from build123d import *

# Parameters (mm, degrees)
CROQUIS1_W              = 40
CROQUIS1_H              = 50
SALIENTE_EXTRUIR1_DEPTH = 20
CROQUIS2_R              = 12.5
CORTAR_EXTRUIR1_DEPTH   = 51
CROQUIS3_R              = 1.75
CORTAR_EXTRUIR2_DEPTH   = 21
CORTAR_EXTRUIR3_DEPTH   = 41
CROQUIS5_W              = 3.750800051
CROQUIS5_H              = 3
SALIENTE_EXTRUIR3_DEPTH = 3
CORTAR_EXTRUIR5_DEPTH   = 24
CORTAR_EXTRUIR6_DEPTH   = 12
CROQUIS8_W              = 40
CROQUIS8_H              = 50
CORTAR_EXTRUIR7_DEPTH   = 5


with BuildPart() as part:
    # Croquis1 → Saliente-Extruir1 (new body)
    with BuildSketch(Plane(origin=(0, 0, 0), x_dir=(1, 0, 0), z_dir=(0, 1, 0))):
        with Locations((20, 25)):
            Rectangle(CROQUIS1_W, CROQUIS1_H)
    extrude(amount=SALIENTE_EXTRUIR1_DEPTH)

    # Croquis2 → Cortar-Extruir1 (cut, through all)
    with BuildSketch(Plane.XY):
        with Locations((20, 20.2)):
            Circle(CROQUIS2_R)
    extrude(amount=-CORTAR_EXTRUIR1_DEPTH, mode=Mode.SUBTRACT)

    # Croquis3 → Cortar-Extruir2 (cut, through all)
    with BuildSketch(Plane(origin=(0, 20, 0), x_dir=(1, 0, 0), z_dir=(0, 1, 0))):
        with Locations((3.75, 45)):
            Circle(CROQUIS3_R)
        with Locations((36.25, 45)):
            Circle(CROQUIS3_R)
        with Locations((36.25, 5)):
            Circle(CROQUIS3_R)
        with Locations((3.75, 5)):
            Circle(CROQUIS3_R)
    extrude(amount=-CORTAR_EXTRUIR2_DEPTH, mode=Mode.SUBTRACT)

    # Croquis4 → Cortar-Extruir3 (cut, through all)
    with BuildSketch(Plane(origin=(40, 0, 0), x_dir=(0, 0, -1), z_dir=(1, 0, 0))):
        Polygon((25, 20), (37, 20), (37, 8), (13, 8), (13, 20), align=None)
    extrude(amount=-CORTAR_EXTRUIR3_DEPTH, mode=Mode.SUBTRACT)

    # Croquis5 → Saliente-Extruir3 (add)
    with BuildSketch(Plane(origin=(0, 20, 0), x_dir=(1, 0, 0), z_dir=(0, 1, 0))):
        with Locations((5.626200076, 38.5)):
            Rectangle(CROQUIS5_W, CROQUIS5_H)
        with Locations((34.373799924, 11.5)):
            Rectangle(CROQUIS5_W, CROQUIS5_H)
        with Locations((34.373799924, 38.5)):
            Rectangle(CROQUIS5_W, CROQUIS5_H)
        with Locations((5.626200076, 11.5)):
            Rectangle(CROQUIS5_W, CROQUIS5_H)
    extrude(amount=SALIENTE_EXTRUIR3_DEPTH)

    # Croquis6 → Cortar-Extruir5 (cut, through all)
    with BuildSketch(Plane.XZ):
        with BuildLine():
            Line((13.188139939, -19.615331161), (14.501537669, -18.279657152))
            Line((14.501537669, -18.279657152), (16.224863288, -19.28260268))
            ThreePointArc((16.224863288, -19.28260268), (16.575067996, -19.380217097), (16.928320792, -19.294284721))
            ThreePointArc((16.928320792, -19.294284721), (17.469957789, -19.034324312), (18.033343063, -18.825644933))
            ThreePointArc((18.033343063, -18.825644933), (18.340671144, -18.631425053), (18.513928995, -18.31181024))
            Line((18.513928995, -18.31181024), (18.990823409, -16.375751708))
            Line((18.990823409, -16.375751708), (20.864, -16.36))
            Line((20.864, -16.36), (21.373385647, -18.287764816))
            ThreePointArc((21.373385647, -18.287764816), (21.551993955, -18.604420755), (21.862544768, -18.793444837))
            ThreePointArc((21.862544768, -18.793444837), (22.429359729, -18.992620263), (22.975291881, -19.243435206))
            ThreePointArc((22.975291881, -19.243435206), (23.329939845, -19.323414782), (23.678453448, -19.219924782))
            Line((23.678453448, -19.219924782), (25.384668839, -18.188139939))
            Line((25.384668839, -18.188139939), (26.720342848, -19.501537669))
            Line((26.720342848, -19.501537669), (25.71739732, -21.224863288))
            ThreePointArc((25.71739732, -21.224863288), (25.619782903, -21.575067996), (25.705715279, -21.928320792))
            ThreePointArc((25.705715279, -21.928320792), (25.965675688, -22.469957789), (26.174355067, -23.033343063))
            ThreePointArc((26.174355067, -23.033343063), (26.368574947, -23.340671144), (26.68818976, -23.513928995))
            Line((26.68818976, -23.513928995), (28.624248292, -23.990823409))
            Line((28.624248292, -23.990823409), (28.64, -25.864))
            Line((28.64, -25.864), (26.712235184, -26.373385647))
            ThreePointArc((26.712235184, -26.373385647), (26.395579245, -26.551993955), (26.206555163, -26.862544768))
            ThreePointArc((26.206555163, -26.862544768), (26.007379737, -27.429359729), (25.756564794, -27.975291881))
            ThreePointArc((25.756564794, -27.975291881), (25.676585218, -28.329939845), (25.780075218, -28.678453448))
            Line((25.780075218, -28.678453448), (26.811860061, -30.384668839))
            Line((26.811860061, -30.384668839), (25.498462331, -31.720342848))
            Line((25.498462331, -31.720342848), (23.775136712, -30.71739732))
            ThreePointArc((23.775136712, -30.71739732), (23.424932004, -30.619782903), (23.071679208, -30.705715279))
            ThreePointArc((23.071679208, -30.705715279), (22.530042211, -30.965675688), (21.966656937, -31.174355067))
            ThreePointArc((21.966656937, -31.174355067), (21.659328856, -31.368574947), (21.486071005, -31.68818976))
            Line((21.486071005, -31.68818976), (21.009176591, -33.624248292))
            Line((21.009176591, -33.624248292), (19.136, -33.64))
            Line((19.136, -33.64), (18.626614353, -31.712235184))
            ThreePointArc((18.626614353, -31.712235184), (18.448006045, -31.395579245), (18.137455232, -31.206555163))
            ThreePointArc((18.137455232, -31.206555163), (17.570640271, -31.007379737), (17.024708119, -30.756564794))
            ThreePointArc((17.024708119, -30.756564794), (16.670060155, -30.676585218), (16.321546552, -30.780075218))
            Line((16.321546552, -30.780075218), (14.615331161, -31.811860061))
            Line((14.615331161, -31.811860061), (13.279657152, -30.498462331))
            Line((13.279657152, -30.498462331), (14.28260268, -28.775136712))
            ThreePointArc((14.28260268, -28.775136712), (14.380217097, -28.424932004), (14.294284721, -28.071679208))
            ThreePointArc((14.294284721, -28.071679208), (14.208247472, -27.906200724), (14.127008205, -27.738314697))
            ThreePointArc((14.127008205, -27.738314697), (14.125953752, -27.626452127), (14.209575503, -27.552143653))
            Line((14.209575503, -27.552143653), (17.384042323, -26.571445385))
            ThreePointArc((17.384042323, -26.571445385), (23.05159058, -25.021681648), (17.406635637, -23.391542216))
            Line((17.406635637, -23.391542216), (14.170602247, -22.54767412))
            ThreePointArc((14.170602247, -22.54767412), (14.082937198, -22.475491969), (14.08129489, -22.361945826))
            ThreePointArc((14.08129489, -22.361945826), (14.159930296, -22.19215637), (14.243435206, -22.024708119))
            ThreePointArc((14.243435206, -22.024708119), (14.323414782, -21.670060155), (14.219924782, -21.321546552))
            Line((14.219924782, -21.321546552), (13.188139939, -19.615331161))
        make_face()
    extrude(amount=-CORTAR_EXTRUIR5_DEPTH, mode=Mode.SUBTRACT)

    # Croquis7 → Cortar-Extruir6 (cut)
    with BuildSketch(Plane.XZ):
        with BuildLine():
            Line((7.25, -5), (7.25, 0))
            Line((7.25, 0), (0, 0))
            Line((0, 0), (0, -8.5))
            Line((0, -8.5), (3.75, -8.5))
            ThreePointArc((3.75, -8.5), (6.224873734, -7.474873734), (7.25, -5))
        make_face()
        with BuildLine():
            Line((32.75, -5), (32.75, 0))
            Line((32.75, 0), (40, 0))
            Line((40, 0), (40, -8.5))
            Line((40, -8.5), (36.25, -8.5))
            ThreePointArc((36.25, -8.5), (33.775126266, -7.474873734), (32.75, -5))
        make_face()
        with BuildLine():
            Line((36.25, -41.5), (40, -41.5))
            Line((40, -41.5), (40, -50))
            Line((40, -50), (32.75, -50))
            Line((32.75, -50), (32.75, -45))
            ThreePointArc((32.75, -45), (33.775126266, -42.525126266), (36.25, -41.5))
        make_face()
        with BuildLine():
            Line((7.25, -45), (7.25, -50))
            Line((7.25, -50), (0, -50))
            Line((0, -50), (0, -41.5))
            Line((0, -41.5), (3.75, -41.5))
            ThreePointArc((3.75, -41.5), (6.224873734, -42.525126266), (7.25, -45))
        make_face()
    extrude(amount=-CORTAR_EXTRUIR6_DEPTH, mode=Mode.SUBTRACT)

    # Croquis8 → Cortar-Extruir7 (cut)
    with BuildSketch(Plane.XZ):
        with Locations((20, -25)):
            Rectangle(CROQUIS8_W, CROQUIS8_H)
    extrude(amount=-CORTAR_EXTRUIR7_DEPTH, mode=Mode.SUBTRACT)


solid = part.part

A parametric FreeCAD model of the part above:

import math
import FreeCAD as App
import Part
import Sketcher
Q = App.Units.Quantity

doc = App.newDocument("Part")
body = doc.addObject("PartDesign::Body", "Body")

sketch1 = body.newObject("Sketcher::SketchObject", "Sketch")
sketch1.AttachmentSupport = (doc.getObject("XZ_Plane"), [""])
sketch1.MapMode = "FlatFace"
sketch1.addGeometry([
    Part.LineSegment(App.Vector(0, -50, 0), App.Vector(0, 0, 0)),
    Part.LineSegment(App.Vector(0, 0, 0), App.Vector(40, 0, 0)),
    Part.LineSegment(App.Vector(40, 0, 0), App.Vector(40, -50, 0)),
    Part.LineSegment(App.Vector(40, -50, 0), App.Vector(0, -50, 0)),
], False)
sketch1.addConstraint([
    Sketcher.Constraint("Coincident", 0, 2, 1, 1),
    Sketcher.Constraint("Coincident", 1, 2, 2, 1),
    Sketcher.Constraint("Coincident", 2, 2, 3, 1),
    Sketcher.Constraint("Coincident", 3, 2, 0, 1),
    Sketcher.Constraint("Vertical", 0),
    Sketcher.Constraint("Horizontal", 1),
    Sketcher.Constraint("Vertical", 2),
    Sketcher.Constraint("Horizontal", 3),
    Sketcher.Constraint("Coincident", 0, 2, -1, 1),
    Sketcher.Constraint("DistanceX", 1, 1, 1, 2, Q("40 mm")),
    Sketcher.Constraint("DistanceY", 0, 1, 0, 2, Q("50 mm")),
])
pad1 = body.newObject("PartDesign::Pad", "Pad")
pad1.Profile = sketch1
pad1.Length = 20
pad1.Reversed = True

sketch2 = body.newObject("Sketcher::SketchObject", "Sketch001")
sketch2.AttachmentSupport = (doc.getObject("XY_Plane"), [""])
sketch2.MapMode = "FlatFace"
sketch2.addGeometry(Part.Circle(App.Vector(20, 20, 0), App.Vector(0, 0, 1), 12), False)
sketch2.addConstraint([
    Sketcher.Constraint("Diameter", 0, Q("25 mm")),
    Sketcher.Constraint("DistanceX", -1, 1, 0, 3, Q("20 mm")),
    Sketcher.Constraint("DistanceY", -1, 1, 0, 3, Q("20.2 mm")),
])
pocket1 = body.newObject("PartDesign::Pocket", "Pocket")
pocket1.Profile = sketch2
pocket1.Type = "ThroughAll"

sketch3 = body.newObject("Sketcher::SketchObject", "Sketch002")
sketch3.AttachmentSupport = (doc.getObject("XZ_Plane"), [""])
sketch3.MapMode = "FlatFace"
sketch3.AttachmentOffset = App.Placement(App.Vector(0, 0, -20), App.Rotation())
sketch3.addGeometry([
    Part.Circle(App.Vector(3.8, -45, 0), App.Vector(0, 0, 1), 1.8),
    Part.Circle(App.Vector(36.2, -45, 0), App.Vector(0, 0, 1), 1.8),
    Part.Circle(App.Vector(36.2, -5, 0), App.Vector(0, 0, 1), 1.8),
    Part.Circle(App.Vector(3.8, -5, 0), App.Vector(0, 0, 1), 1.8),
], False)
sketch3.addConstraint([
    Sketcher.Constraint("Equal", 0, 1),
    Sketcher.Constraint("Equal", 1, 2),
    Sketcher.Constraint("Equal", 2, 3),
    Sketcher.Constraint("Horizontal", 0, 3, 1, 3),
    Sketcher.Constraint("Horizontal", 2, 3, 3, 3),
    Sketcher.Constraint("Vertical", 1, 3, 2, 3),
    Sketcher.Constraint("Vertical", 0, 3, 3, 3),
    Sketcher.Constraint("Diameter", 0, Q("3.5 mm")),
    Sketcher.Constraint("DistanceY", 0, 3, -1, 1, Q("45 mm")),
    Sketcher.Constraint("DistanceY", 2, 3, -1, 1, Q("5 mm")),
    Sketcher.Constraint("DistanceX", 0, 3, 1, 3, Q("32.5 mm")),
    Sketcher.Constraint("DistanceX", -1, 1, 0, 3, Q("3.75 mm")),
])
pocket2 = body.newObject("PartDesign::Pocket", "Pocket001")
pocket2.Profile = sketch3
pocket2.Type = "ThroughAll"
pocket2.Reversed = True

sketch4 = body.newObject("Sketcher::SketchObject", "Sketch003")
sketch4.AttachmentSupport = (doc.getObject("YZ_Plane"), [""])
sketch4.MapMode = "FlatFace"
sketch4.AttachmentOffset = App.Placement(App.Vector(0, 0, 40), App.Rotation())
sketch4.addGeometry([
    Part.LineSegment(App.Vector(20, -37, 0), App.Vector(20, -13, 0)),
    Part.LineSegment(App.Vector(20, -13, 0), App.Vector(8, -13, 0)),
    Part.LineSegment(App.Vector(8, -13, 0), App.Vector(8, -37, 0)),
    Part.LineSegment(App.Vector(8, -37, 0), App.Vector(20, -37, 0)),
], False)
sketch4.addConstraint([
    Sketcher.Constraint("Coincident", 0, 2, 1, 1),
    Sketcher.Constraint("Coincident", 1, 2, 2, 1),
    Sketcher.Constraint("Coincident", 2, 2, 3, 1),
    Sketcher.Constraint("Coincident", 3, 2, 0, 1),
    Sketcher.Constraint("Vertical", 0),
    Sketcher.Constraint("Horizontal", 1),
    Sketcher.Constraint("Vertical", 2),
    Sketcher.Constraint("Horizontal", 3),
    Sketcher.Constraint("DistanceX", 1, 2, 1, 1, Q("12 mm")),
    Sketcher.Constraint("DistanceY", 0, 1, 0, 2, Q("24 mm")),
    Sketcher.Constraint("DistanceX", -1, 1, 0, 2, Q("20 mm")),
    Sketcher.Constraint("DistanceY", 0, 2, -1, 1, Q("13 mm")),
])
pocket3 = body.newObject("PartDesign::Pocket", "Pocket002")
pocket3.Profile = sketch4
pocket3.Type = "ThroughAll"

sketch5 = body.newObject("Sketcher::SketchObject", "Sketch004")
sketch5.AttachmentSupport = (doc.getObject("XZ_Plane"), [""])
sketch5.MapMode = "FlatFace"
sketch5.AttachmentOffset = App.Placement(App.Vector(0, 0, -20), App.Rotation())
sketch5.addGeometry([
    Part.LineSegment(App.Vector(3.8, -40, 0), App.Vector(3.8, -37, 0)),
    Part.LineSegment(App.Vector(3.8, -37, 0), App.Vector(7.5, -37, 0)),
    Part.LineSegment(App.Vector(7.5, -37, 0), App.Vector(7.5, -40, 0)),
    Part.LineSegment(App.Vector(7.5, -40, 0), App.Vector(3.8, -40, 0)),
    Part.LineSegment(App.Vector(32.5, -13, 0), App.Vector(32.5, -10, 0)),
    Part.LineSegment(App.Vector(32.5, -10, 0), App.Vector(36.2, -10, 0)),
    Part.LineSegment(App.Vector(36.2, -10, 0), App.Vector(36.2, -13, 0)),
    Part.LineSegment(App.Vector(36.2, -13, 0), App.Vector(32.5, -13, 0)),
    Part.LineSegment(App.Vector(32.5, -40, 0), App.Vector(32.5, -37, 0)),
    Part.LineSegment(App.Vector(32.5, -37, 0), App.Vector(36.2, -37, 0)),
    Part.LineSegment(App.Vector(36.2, -37, 0), App.Vector(36.2, -40, 0)),
    Part.LineSegment(App.Vector(36.2, -40, 0), App.Vector(32.5, -40, 0)),
    Part.LineSegment(App.Vector(3.8, -13, 0), App.Vector(3.8, -10, 0)),
    Part.LineSegment(App.Vector(3.8, -10, 0), App.Vector(7.5, -10, 0)),
    Part.LineSegment(App.Vector(7.5, -10, 0), App.Vector(7.5, -13, 0)),
    Part.LineSegment(App.Vector(7.5, -13, 0), App.Vector(3.8, -13, 0)),
], False)
sketch5.addConstraint([
    Sketcher.Constraint("Coincident", 0, 2, 1, 1),
    Sketcher.Constraint("Coincident", 1, 2, 2, 1),
    Sketcher.Constraint("Coincident", 2, 2, 3, 1),
    Sketcher.Constraint("Coincident", 3, 2, 0, 1),
    Sketcher.Constraint("Coincident", 4, 2, 5, 1),
    Sketcher.Constraint("Coincident", 5, 2, 6, 1),
    Sketcher.Constraint("Coincident", 6, 2, 7, 1),
    Sketcher.Constraint("Coincident", 7, 2, 4, 1),
    Sketcher.Constraint("Coincident", 8, 2, 9, 1),
    Sketcher.Constraint("Coincident", 9, 2, 10, 1),
    Sketcher.Constraint("Coincident", 10, 2, 11, 1),
    Sketcher.Constraint("Coincident", 11, 2, 8, 1),
    Sketcher.Constraint("Coincident", 12, 2, 13, 1),
    Sketcher.Constraint("Coincident", 13, 2, 14, 1),
    Sketcher.Constraint("Coincident", 14, 2, 15, 1),
    Sketcher.Constraint("Coincident", 15, 2, 12, 1),
    Sketcher.Constraint("Vertical", 0),
    Sketcher.Constraint("Horizontal", 1),
    Sketcher.Constraint("Vertical", 2),
    Sketcher.Constraint("Horizontal", 3),
    Sketcher.Constraint("Vertical", 4),
    Sketcher.Constraint("Horizontal", 5),
    Sketcher.Constraint("Vertical", 6),
    Sketcher.Constraint("Horizontal", 7),
    Sketcher.Constraint("Vertical", 8),
    Sketcher.Constraint("Horizontal", 9),
    Sketcher.Constraint("Vertical", 10),
    Sketcher.Constraint("Horizontal", 11),
    Sketcher.Constraint("Vertical", 12),
    Sketcher.Constraint("Horizontal", 13),
    Sketcher.Constraint("Vertical", 14),
    Sketcher.Constraint("Horizontal", 15),
    Sketcher.Constraint("Horizontal", 1, 2, 8, 2),
    Sketcher.Constraint("Horizontal", 3, 2, 10, 2),
    Sketcher.Constraint("Horizontal", 5, 2, 12, 2),
    Sketcher.Constraint("Horizontal", 7, 2, 14, 2),
    Sketcher.Constraint("Vertical", 7, 2, 8, 2),
    Sketcher.Constraint("Vertical", 6, 2, 9, 2),
    Sketcher.Constraint("Vertical", 3, 2, 12, 2),
    Sketcher.Constraint("Vertical", 2, 2, 13, 2),
    Sketcher.Constraint("Equal", 3, 5),
    Sketcher.Constraint("Equal", 2, 4),
    Sketcher.Constraint("DistanceY", 0, 1, 0, 2, Q("3 mm")),
    Sketcher.Constraint("DistanceY", 0, 2, -1, 1, Q("37 mm")),
    Sketcher.Constraint("DistanceY", 4, 2, -1, 1, Q("10 mm")),
    Sketcher.Constraint("DistanceX", 1, 1, 1, 2, Q("3.7508 mm")),
    Sketcher.Constraint("DistanceX", -1, 1, 0, 2, Q("3.7508 mm")),
    Sketcher.Constraint("DistanceX", -1, 1, 4, 2, Q("32.4984 mm")),
])
pad2 = body.newObject("PartDesign::Pad", "Pad001")
pad2.Profile = sketch5
pad2.Length = 3
pad2.Reversed = True

sketch6 = body.newObject("Sketcher::SketchObject", "Sketch005")
sketch6.AttachmentSupport = (doc.getObject("XZ_Plane"), [""])
sketch6.MapMode = "FlatFace"
sketch6.addGeometry([
    Part.LineSegment(App.Vector(14.5, -18.28, 0), App.Vector(13.19, -19.62, 0)),
    Part.LineSegment(App.Vector(13.19, -19.62, 0), App.Vector(14.22, -21.32, 0)),
    Part.ArcOfCircle(Part.Circle(App.Vector(13.6, -21.69, 0), App.Vector(0, 0, 1), 0.72), math.radians(-27), math.radians(31)),
    Part.ArcOfCircle(Part.Circle(App.Vector(20, -25, 0), App.Vector(0, 0, 1), 6.48), math.radians(152.67), math.radians(155.98)),
    Part.ArcOfCircle(Part.Circle(App.Vector(14.2, -22.42, 0), App.Vector(0, 0, 1), 0.14), math.radians(156), math.radians(255)),
    Part.LineSegment(App.Vector(14.17, -22.55, 0), App.Vector(17.41, -23.39, 0)),
    Part.ArcOfCircle(Part.Circle(App.Vector(20, -25, 0), App.Vector(0, 0, 1), 3.05), math.radians(-149), math.radians(148)),
    Part.LineSegment(App.Vector(17.38, -26.57, 0), App.Vector(14.21, -27.55, 0)),
    Part.ArcOfCircle(Part.Circle(App.Vector(14.25, -27.68, 0), App.Vector(0, 0, 1), 0.14), math.radians(107), math.radians(205)),
    Part.ArcOfCircle(Part.Circle(App.Vector(20, -25, 0), App.Vector(0, 0, 1), 6.48), math.radians(-155), math.radians(-151.7)),
    Part.ArcOfCircle(Part.Circle(App.Vector(13.66, -28.41, 0), App.Vector(0, 0, 1), 0.72), math.radians(-30), math.radians(28)),
    Part.LineSegment(App.Vector(14.28, -28.78, 0), App.Vector(13.28, -30.5, 0)),
    Part.LineSegment(App.Vector(13.28, -30.5, 0), App.Vector(14.62, -31.81, 0)),
    Part.LineSegment(App.Vector(14.62, -31.81, 0), App.Vector(16.32, -30.78, 0)),
    Part.ArcOfCircle(Part.Circle(App.Vector(16.69, -31.4, 0), App.Vector(0, 0, 1), 0.72), math.radians(63), math.radians(121)),
    Part.ArcOfCircle(Part.Circle(App.Vector(20, -25, 0), App.Vector(0, 0, 1), 6.48), math.radians(-117.33), math.radians(-106.7)),
    Part.ArcOfCircle(Part.Circle(App.Vector(17.93, -31.9, 0), App.Vector(0, 0, 1), 0.72), math.radians(15), math.radians(73)),
    Part.LineSegment(App.Vector(18.63, -31.71, 0), App.Vector(19.14, -33.64, 0)),
    Part.LineSegment(App.Vector(19.14, -33.64, 0), App.Vector(21.01, -33.62, 0)),
    Part.LineSegment(App.Vector(21.01, -33.62, 0), App.Vector(21.49, -31.69, 0)),
    Part.ArcOfCircle(Part.Circle(App.Vector(22.19, -31.86, 0), App.Vector(0, 0, 1), 0.72), math.radians(108), math.radians(166)),
    Part.ArcOfCircle(Part.Circle(App.Vector(20, -25, 0), App.Vector(0, 0, 1), 6.48), math.radians(-72.33), math.radians(-61.7)),
    Part.ArcOfCircle(Part.Circle(App.Vector(23.41, -31.34, 0), App.Vector(0, 0, 1), 0.72), math.radians(60), math.radians(118)),
    Part.LineSegment(App.Vector(23.78, -30.72, 0), App.Vector(25.5, -31.72, 0)),
    Part.LineSegment(App.Vector(25.5, -31.72, 0), App.Vector(26.81, -30.38, 0)),
    Part.LineSegment(App.Vector(26.81, -30.38, 0), App.Vector(25.78, -28.68, 0)),
    Part.ArcOfCircle(Part.Circle(App.Vector(26.4, -28.31, 0), App.Vector(0, 0, 1), 0.72), math.radians(153), math.radians(211)),
    Part.ArcOfCircle(Part.Circle(App.Vector(20, -25, 0), App.Vector(0, 0, 1), 6.48), math.radians(-27.33), math.radians(-16.7)),
    Part.ArcOfCircle(Part.Circle(App.Vector(26.9, -27.07, 0), App.Vector(0, 0, 1), 0.72), math.radians(105), math.radians(163)),
    Part.LineSegment(App.Vector(26.71, -26.37, 0), App.Vector(28.64, -25.86, 0)),
    Part.LineSegment(App.Vector(28.64, -25.86, 0), App.Vector(28.62, -23.99, 0)),
    Part.LineSegment(App.Vector(28.62, -23.99, 0), App.Vector(26.69, -23.51, 0)),
    Part.ArcOfCircle(Part.Circle(App.Vector(26.86, -22.81, 0), App.Vector(0, 0, 1), 0.72), math.radians(-162), math.radians(-104)),
    Part.ArcOfCircle(Part.Circle(App.Vector(20, -25, 0), App.Vector(0, 0, 1), 6.48), math.radians(17.67), math.radians(28.3)),
    Part.ArcOfCircle(Part.Circle(App.Vector(26.34, -21.59, 0), App.Vector(0, 0, 1), 0.72), math.radians(150), math.radians(208)),
    Part.LineSegment(App.Vector(25.72, -21.22, 0), App.Vector(26.72, -19.5, 0)),
    Part.LineSegment(App.Vector(26.72, -19.5, 0), App.Vector(25.38, -18.19, 0)),
    Part.LineSegment(App.Vector(25.38, -18.19, 0), App.Vector(23.68, -19.22, 0)),
    Part.ArcOfCircle(Part.Circle(App.Vector(23.31, -18.6, 0), App.Vector(0, 0, 1), 0.72), math.radians(-117), math.radians(-59)),
    Part.ArcOfCircle(Part.Circle(App.Vector(20, -25, 0), App.Vector(0, 0, 1), 6.48), math.radians(62.67), math.radians(73.3)),
    Part.ArcOfCircle(Part.Circle(App.Vector(22.07, -18.1, 0), App.Vector(0, 0, 1), 0.72), math.radians(-165), math.radians(-107)),
    Part.LineSegment(App.Vector(21.37, -18.29, 0), App.Vector(20.86, -16.36, 0)),
    Part.LineSegment(App.Vector(20.86, -16.36, 0), App.Vector(18.99, -16.38, 0)),
    Part.LineSegment(App.Vector(18.99, -16.38, 0), App.Vector(18.51, -18.31, 0)),
    Part.ArcOfCircle(Part.Circle(App.Vector(17.81, -18.14, 0), App.Vector(0, 0, 1), 0.72), math.radians(-72), math.radians(-14)),
    Part.ArcOfCircle(Part.Circle(App.Vector(20, -25, 0), App.Vector(0, 0, 1), 6.48), math.radians(107.67), math.radians(118.3)),
    Part.ArcOfCircle(Part.Circle(App.Vector(16.59, -18.66, 0), App.Vector(0, 0, 1), 0.72), math.radians(-120), math.radians(-62)),
    Part.LineSegment(App.Vector(16.22, -19.28, 0), App.Vector(14.5, -18.28, 0)),
], False)
sketch6.addConstraint([
    Sketcher.Constraint("Coincident", 0, 2, 1, 1),
    Sketcher.Constraint("Tangent", 1, 2, 2, 2),
    Sketcher.Constraint("Tangent", 2, 1, 3, 1),
    Sketcher.Constraint("Tangent", 3, 2, 4, 1),
    Sketcher.Constraint("Tangent", 4, 2, 5, 1),
    Sketcher.Constraint("Coincident", 5, 2, 6, 2),
    Sketcher.Constraint("Coincident", 6, 1, 7, 1),
    Sketcher.Constraint("Tangent", 7, 2, 8, 1),
    Sketcher.Constraint("Tangent", 8, 2, 9, 1),
    Sketcher.Constraint("Tangent", 9, 2, 10, 2),
    Sketcher.Constraint("Tangent", 10, 1, 11, 1),
    Sketcher.Constraint("Coincident", 11, 2, 12, 1),
    Sketcher.Constraint("Coincident", 12, 2, 13, 1),
    Sketcher.Constraint("Tangent", 13, 2, 14, 2),
    Sketcher.Constraint("Tangent", 14, 1, 15, 1),
    Sketcher.Constraint("Tangent", 15, 2, 16, 2),
    Sketcher.Constraint("Tangent", 16, 1, 17, 1),
    Sketcher.Constraint("Coincident", 17, 2, 18, 1),
    Sketcher.Constraint("Coincident", 18, 2, 19, 1),
    Sketcher.Constraint("Tangent", 19, 2, 20, 2),
    Sketcher.Constraint("Tangent", 20, 1, 21, 1),
    Sketcher.Constraint("Tangent", 21, 2, 22, 2),
    Sketcher.Constraint("Tangent", 22, 1, 23, 1),
    Sketcher.Constraint("Coincident", 23, 2, 24, 1),
    Sketcher.Constraint("Coincident", 24, 2, 25, 1),
    Sketcher.Constraint("Tangent", 25, 2, 26, 2),
    Sketcher.Constraint("Tangent", 26, 1, 27, 1),
    Sketcher.Constraint("Tangent", 27, 2, 28, 2),
    Sketcher.Constraint("Tangent", 28, 1, 29, 1),
    Sketcher.Constraint("Coincident", 29, 2, 30, 1),
    Sketcher.Constraint("Coincident", 30, 2, 31, 1),
    Sketcher.Constraint("Tangent", 31, 2, 32, 2),
    Sketcher.Constraint("Tangent", 32, 1, 33, 1),
    Sketcher.Constraint("Tangent", 33, 2, 34, 2),
    Sketcher.Constraint("Tangent", 34, 1, 35, 1),
    Sketcher.Constraint("Coincident", 35, 2, 36, 1),
    Sketcher.Constraint("Coincident", 36, 2, 37, 1),
    Sketcher.Constraint("Tangent", 37, 2, 38, 2),
    Sketcher.Constraint("Tangent", 38, 1, 39, 1),
    Sketcher.Constraint("Tangent", 39, 2, 40, 2),
    Sketcher.Constraint("Tangent", 40, 1, 41, 1),
    Sketcher.Constraint("Coincident", 41, 2, 42, 1),
    Sketcher.Constraint("Coincident", 42, 2, 43, 1),
    Sketcher.Constraint("Tangent", 43, 2, 44, 2),
    Sketcher.Constraint("Tangent", 44, 1, 45, 1),
    Sketcher.Constraint("Tangent", 45, 2, 46, 2),
    Sketcher.Constraint("Tangent", 46, 1, 47, 1),
    Sketcher.Constraint("Coincident", 47, 2, 0, 1),
    Sketcher.Constraint("Coincident", 6, 3, 3, 3),
    Sketcher.Constraint("Coincident", 9, 3, 3, 3),
    Sketcher.Constraint("Coincident", 15, 3, 3, 3),
    Sketcher.Constraint("Coincident", 21, 3, 3, 3),
    Sketcher.Constraint("Coincident", 27, 3, 3, 3),
    Sketcher.Constraint("Coincident", 33, 3, 3, 3),
    Sketcher.Constraint("Coincident", 39, 3, 3, 3),
    Sketcher.Constraint("Coincident", 45, 3, 3, 3),
    Sketcher.Constraint("Equal", 4, 8),
    Sketcher.Constraint("Equal", 3, 9),
    Sketcher.Constraint("Equal", 2, 10),
    Sketcher.Constraint("Equal", 10, 14),
    Sketcher.Constraint("Equal", 9, 15),
    Sketcher.Constraint("Equal", 14, 16),
    Sketcher.Constraint("Equal", 16, 20),
    Sketcher.Constraint("Equal", 15, 21),
    Sketcher.Constraint("Equal", 20, 22),
    Sketcher.Constraint("Equal", 22, 26),
    Sketcher.Constraint("Equal", 21, 27),
    Sketcher.Constraint("Equal", 26, 28),
    Sketcher.Constraint("Equal", 28, 32),
    Sketcher.Constraint("Equal", 27, 33),
    Sketcher.Constraint("Equal", 32, 34),
    Sketcher.Constraint("Equal", 34, 38),
    Sketcher.Constraint("Equal", 33, 39),
    Sketcher.Constraint("Equal", 38, 40),
    Sketcher.Constraint("Equal", 40, 44),
    Sketcher.Constraint("Equal", 39, 45),
    Sketcher.Constraint("Equal", 44, 46),
    Sketcher.Constraint("Perpendicular", 0, 12),
    Sketcher.Constraint("Perpendicular", 1, 13),
    Sketcher.Constraint("Perpendicular", 11, 23),
    Sketcher.Constraint("Perpendicular", 12, 24),
    Sketcher.Constraint("Perpendicular", 13, 25),
    Sketcher.Constraint("Perpendicular", 17, 29),
    Sketcher.Constraint("Perpendicular", 18, 30),
    Sketcher.Constraint("Perpendicular", 19, 31),
    Sketcher.Constraint("Perpendicular", 23, 35),
    Sketcher.Constraint("Perpendicular", 24, 36),
    Sketcher.Constraint("Perpendicular", 25, 37),
    Sketcher.Constraint("Perpendicular", 29, 41),
    Sketcher.Constraint("Perpendicular", 30, 42),
    Sketcher.Constraint("Perpendicular", 31, 43),
    Sketcher.Constraint("Perpendicular", 35, 47),
    Sketcher.Constraint("Equal", 1, 11),
    Sketcher.Constraint("Equal", 0, 12),
    Sketcher.Constraint("Equal", 11, 13),
    Sketcher.Constraint("Equal", 13, 17),
    Sketcher.Constraint("Equal", 12, 18),
    Sketcher.Constraint("Equal", 17, 19),
    Sketcher.Constraint("Equal", 19, 23),
    Sketcher.Constraint("Equal", 18, 24),
    Sketcher.Constraint("Equal", 23, 25),
    Sketcher.Constraint("Equal", 25, 29),
    Sketcher.Constraint("Equal", 24, 30),
    Sketcher.Constraint("Equal", 29, 31),
    Sketcher.Constraint("Equal", 31, 35),
    Sketcher.Constraint("Equal", 30, 36),
    Sketcher.Constraint("Equal", 35, 37),
    Sketcher.Constraint("Equal", 37, 41),
    Sketcher.Constraint("Equal", 36, 42),
    Sketcher.Constraint("Equal", 41, 43),
    Sketcher.Constraint("Equal", 43, 47),
    Sketcher.Constraint("Radius", 2, Q("0.72 mm")),
    Sketcher.Constraint("Radius", 3, Q("6.480001 mm")),
    Sketcher.Constraint("DistanceX", -1, 1, 3, 3, Q("20.000001 mm")),
    Sketcher.Constraint("DistanceY", 3, 3, -1, 1, Q("25.000001 mm")),
    Sketcher.Constraint("Radius", 4, Q("0.1351 mm")),
    Sketcher.Constraint("DistanceY", 17, 2, -1, 1, Q("33.64 mm")),
    Sketcher.Constraint("DistanceX", -1, 1, 17, 2, Q("19.136 mm")),
    Sketcher.Constraint("Radius", 6, Q("3.051668 mm")),
    Sketcher.Constraint("Distance", 7, Q("3.3225 mm")),
    Sketcher.Constraint("Distance", 1, Q("1.993929 mm")),
    Sketcher.Constraint("DistanceY", 2, 3, -1, 1, Q("21.69412 mm")),
    Sketcher.Constraint("DistanceX", -1, 1, 0, 2, Q("13.18814 mm")),
    Sketcher.Constraint("DistanceX", -1, 1, 8, 2, Q("14.127008 mm")),
    Sketcher.Constraint("DistanceY", 9, 2, -1, 1, Q("28.071679 mm")),
    Sketcher.Constraint("DistanceY", 18, 2, -1, 1, Q("33.624248 mm")),
    Sketcher.Constraint("DistanceX", -1, 1, 19, 2, Q("21.486071 mm")),
    Sketcher.Constraint("Distance", 5, Q("3.344253 mm")),
    Sketcher.Constraint("DistanceX", -1, 1, 4, 3, Q("14.204693 mm")),
])
pocket4 = body.newObject("PartDesign::Pocket", "Pocket003")
pocket4.Profile = sketch6
pocket4.Type = "ThroughAll"

sketch7 = body.newObject("Sketcher::SketchObject", "Sketch006")
sketch7.AttachmentSupport = (doc.getObject("XZ_Plane"), [""])
sketch7.MapMode = "FlatFace"
sketch7.addGeometry([
    Part.LineSegment(App.Vector(7.2, -5, 0), App.Vector(7.2, 0, 0)),
    Part.LineSegment(App.Vector(7.2, 0, 0), App.Vector(0, 0, 0)),
    Part.LineSegment(App.Vector(0, 0, 0), App.Vector(0, -8.5, 0)),
    Part.LineSegment(App.Vector(0, -8.5, 0), App.Vector(3.8, -8.5, 0)),
    Part.ArcOfCircle(Part.Circle(App.Vector(3.7, -5, 0), App.Vector(0, 0, 1), 3.5), math.radians(-90), math.radians(0)),
    Part.LineSegment(App.Vector(32.8, 0, 0), App.Vector(32.8, -5, 0)),
    Part.ArcOfCircle(Part.Circle(App.Vector(36.3, -5, 0), App.Vector(0, 0, 1), 3.5), math.radians(-180), math.radians(-90)),
    Part.LineSegment(App.Vector(36.2, -8.5, 0), App.Vector(40, -8.5, 0)),
    Part.LineSegment(App.Vector(40, -8.5, 0), App.Vector(40, 0, 0)),
    Part.LineSegment(App.Vector(40, 0, 0), App.Vector(32.8, 0, 0)),
    Part.LineSegment(App.Vector(40, -41.5, 0), App.Vector(36.2, -41.5, 0)),
    Part.ArcOfCircle(Part.Circle(App.Vector(36.3, -45, 0), App.Vector(0, 0, 1), 3.5), math.radians(90), math.radians(180)),
    Part.LineSegment(App.Vector(32.8, -45, 0), App.Vector(32.8, -50, 0)),
    Part.LineSegment(App.Vector(32.8, -50, 0), App.Vector(40, -50, 0)),
    Part.LineSegment(App.Vector(40, -50, 0), App.Vector(40, -41.5, 0)),
    Part.LineSegment(App.Vector(7.2, -50, 0), App.Vector(7.2, -45, 0)),
    Part.ArcOfCircle(Part.Circle(App.Vector(3.7, -45, 0), App.Vector(0, 0, 1), 3.5), math.radians(0), math.radians(90)),
    Part.LineSegment(App.Vector(3.8, -41.5, 0), App.Vector(0, -41.5, 0)),
    Part.LineSegment(App.Vector(0, -41.5, 0), App.Vector(0, -50, 0)),
    Part.LineSegment(App.Vector(0, -50, 0), App.Vector(7.2, -50, 0)),
], False)
sketch7.addConstraint([
    Sketcher.Constraint("Coincident", 0, 2, 1, 1),
    Sketcher.Constraint("Coincident", 1, 2, 2, 1),
    Sketcher.Constraint("Coincident", 2, 2, 3, 1),
    Sketcher.Constraint("Tangent", 3, 2, 4, 1),
    Sketcher.Constraint("Tangent", 4, 2, 0, 1),
    Sketcher.Constraint("Tangent", 5, 2, 6, 1),
    Sketcher.Constraint("Tangent", 6, 2, 7, 1),
    Sketcher.Constraint("Coincident", 7, 2, 8, 1),
    Sketcher.Constraint("Coincident", 8, 2, 9, 1),
    Sketcher.Constraint("Coincident", 9, 2, 5, 1),
    Sketcher.Constraint("Tangent", 10, 2, 11, 1),
    Sketcher.Constraint("Tangent", 11, 2, 12, 1),
    Sketcher.Constraint("Coincident", 12, 2, 13, 1),
    Sketcher.Constraint("Coincident", 13, 2, 14, 1),
    Sketcher.Constraint("Coincident", 14, 2, 10, 1),
    Sketcher.Constraint("Tangent", 15, 2, 16, 1),
    Sketcher.Constraint("Tangent", 16, 2, 17, 1),
    Sketcher.Constraint("Coincident", 17, 2, 18, 1),
    Sketcher.Constraint("Coincident", 18, 2, 19, 1),
    Sketcher.Constraint("Coincident", 19, 2, 15, 1),
    Sketcher.Constraint("Vertical", 0),
    Sketcher.Constraint("Horizontal", 1),
    Sketcher.Constraint("Vertical", 2),
    Sketcher.Constraint("Horizontal", 3),
    Sketcher.Constraint("Vertical", 5),
    Sketcher.Constraint("Horizontal", 7),
    Sketcher.Constraint("Vertical", 8),
    Sketcher.Constraint("Horizontal", 9),
    Sketcher.Constraint("Horizontal", 10),
    Sketcher.Constraint("Vertical", 12),
    Sketcher.Constraint("Horizontal", 13),
    Sketcher.Constraint("Vertical", 14),
    Sketcher.Constraint("Vertical", 15),
    Sketcher.Constraint("Horizontal", 17),
    Sketcher.Constraint("Vertical", 18),
    Sketcher.Constraint("Horizontal", 19),
    Sketcher.Constraint("Coincident", 1, 2, -1, 1),
    Sketcher.Constraint("Equal", 4, 6),
    Sketcher.Constraint("Equal", 6, 11),
    Sketcher.Constraint("Equal", 11, 16),
    Sketcher.Constraint("PointOnObject", 8, 2, -1),
    Sketcher.Constraint("PointOnObject", 17, 2, -2),
    Sketcher.Constraint("Horizontal", 4, 3, 6, 3),
    Sketcher.Constraint("Horizontal", 11, 3, 16, 3),
    Sketcher.Constraint("Horizontal", 13, 2, 18, 2),
    Sketcher.Constraint("Vertical", 6, 3, 11, 3),
    Sketcher.Constraint("Vertical", 4, 3, 16, 3),
    Sketcher.Constraint("Vertical", 8, 2, 13, 2),
    Sketcher.Constraint("Equal", 3, 7),
    Sketcher.Constraint("Equal", 5, 12),
    Sketcher.Constraint("Radius", 4, Q("3.5 mm")),
    Sketcher.Constraint("DistanceY", 0, 1, 0, 2, Q("5 mm")),
    Sketcher.Constraint("DistanceY", 11, 3, -1, 1, Q("45 mm")),
    Sketcher.Constraint("DistanceX", -1, 1, 7, 2, Q("40 mm")),
    Sketcher.Constraint("DistanceX", 0, 2, 6, 3, Q("29 mm")),
])
pocket5 = body.newObject("PartDesign::Pocket", "Pocket004")
pocket5.Profile = sketch7
pocket5.Length = 12

sketch8 = body.newObject("Sketcher::SketchObject", "Sketch007")
sketch8.AttachmentSupport = (doc.getObject("XZ_Plane"), [""])
sketch8.MapMode = "FlatFace"
sketch8.addGeometry([
    Part.LineSegment(App.Vector(0, 0, 0), App.Vector(0, -50, 0)),
    Part.LineSegment(App.Vector(0, -50, 0), App.Vector(40, -50, 0)),
    Part.LineSegment(App.Vector(40, -50, 0), App.Vector(40, 0, 0)),
    Part.LineSegment(App.Vector(40, 0, 0), App.Vector(0, 0, 0)),
], False)
sketch8.addConstraint([
    Sketcher.Constraint("Coincident", 0, 2, 1, 1),
    Sketcher.Constraint("Coincident", 1, 2, 2, 1),
    Sketcher.Constraint("Coincident", 2, 2, 3, 1),
    Sketcher.Constraint("Coincident", 3, 2, 0, 1),
    Sketcher.Constraint("Vertical", 0),
    Sketcher.Constraint("Horizontal", 1),
    Sketcher.Constraint("Vertical", 2),
    Sketcher.Constraint("Horizontal", 3),
    Sketcher.Constraint("Coincident", 3, 2, -1, 1),
    Sketcher.Constraint("DistanceX", 1, 1, 1, 2, Q("40 mm")),
    Sketcher.Constraint("DistanceY", 0, 2, 0, 1, Q("50 mm")),
])
pocket6 = body.newObject("PartDesign::Pocket", "Pocket005")
pocket6.Profile = sketch8
pocket6.Length = 5

doc.recompute()
